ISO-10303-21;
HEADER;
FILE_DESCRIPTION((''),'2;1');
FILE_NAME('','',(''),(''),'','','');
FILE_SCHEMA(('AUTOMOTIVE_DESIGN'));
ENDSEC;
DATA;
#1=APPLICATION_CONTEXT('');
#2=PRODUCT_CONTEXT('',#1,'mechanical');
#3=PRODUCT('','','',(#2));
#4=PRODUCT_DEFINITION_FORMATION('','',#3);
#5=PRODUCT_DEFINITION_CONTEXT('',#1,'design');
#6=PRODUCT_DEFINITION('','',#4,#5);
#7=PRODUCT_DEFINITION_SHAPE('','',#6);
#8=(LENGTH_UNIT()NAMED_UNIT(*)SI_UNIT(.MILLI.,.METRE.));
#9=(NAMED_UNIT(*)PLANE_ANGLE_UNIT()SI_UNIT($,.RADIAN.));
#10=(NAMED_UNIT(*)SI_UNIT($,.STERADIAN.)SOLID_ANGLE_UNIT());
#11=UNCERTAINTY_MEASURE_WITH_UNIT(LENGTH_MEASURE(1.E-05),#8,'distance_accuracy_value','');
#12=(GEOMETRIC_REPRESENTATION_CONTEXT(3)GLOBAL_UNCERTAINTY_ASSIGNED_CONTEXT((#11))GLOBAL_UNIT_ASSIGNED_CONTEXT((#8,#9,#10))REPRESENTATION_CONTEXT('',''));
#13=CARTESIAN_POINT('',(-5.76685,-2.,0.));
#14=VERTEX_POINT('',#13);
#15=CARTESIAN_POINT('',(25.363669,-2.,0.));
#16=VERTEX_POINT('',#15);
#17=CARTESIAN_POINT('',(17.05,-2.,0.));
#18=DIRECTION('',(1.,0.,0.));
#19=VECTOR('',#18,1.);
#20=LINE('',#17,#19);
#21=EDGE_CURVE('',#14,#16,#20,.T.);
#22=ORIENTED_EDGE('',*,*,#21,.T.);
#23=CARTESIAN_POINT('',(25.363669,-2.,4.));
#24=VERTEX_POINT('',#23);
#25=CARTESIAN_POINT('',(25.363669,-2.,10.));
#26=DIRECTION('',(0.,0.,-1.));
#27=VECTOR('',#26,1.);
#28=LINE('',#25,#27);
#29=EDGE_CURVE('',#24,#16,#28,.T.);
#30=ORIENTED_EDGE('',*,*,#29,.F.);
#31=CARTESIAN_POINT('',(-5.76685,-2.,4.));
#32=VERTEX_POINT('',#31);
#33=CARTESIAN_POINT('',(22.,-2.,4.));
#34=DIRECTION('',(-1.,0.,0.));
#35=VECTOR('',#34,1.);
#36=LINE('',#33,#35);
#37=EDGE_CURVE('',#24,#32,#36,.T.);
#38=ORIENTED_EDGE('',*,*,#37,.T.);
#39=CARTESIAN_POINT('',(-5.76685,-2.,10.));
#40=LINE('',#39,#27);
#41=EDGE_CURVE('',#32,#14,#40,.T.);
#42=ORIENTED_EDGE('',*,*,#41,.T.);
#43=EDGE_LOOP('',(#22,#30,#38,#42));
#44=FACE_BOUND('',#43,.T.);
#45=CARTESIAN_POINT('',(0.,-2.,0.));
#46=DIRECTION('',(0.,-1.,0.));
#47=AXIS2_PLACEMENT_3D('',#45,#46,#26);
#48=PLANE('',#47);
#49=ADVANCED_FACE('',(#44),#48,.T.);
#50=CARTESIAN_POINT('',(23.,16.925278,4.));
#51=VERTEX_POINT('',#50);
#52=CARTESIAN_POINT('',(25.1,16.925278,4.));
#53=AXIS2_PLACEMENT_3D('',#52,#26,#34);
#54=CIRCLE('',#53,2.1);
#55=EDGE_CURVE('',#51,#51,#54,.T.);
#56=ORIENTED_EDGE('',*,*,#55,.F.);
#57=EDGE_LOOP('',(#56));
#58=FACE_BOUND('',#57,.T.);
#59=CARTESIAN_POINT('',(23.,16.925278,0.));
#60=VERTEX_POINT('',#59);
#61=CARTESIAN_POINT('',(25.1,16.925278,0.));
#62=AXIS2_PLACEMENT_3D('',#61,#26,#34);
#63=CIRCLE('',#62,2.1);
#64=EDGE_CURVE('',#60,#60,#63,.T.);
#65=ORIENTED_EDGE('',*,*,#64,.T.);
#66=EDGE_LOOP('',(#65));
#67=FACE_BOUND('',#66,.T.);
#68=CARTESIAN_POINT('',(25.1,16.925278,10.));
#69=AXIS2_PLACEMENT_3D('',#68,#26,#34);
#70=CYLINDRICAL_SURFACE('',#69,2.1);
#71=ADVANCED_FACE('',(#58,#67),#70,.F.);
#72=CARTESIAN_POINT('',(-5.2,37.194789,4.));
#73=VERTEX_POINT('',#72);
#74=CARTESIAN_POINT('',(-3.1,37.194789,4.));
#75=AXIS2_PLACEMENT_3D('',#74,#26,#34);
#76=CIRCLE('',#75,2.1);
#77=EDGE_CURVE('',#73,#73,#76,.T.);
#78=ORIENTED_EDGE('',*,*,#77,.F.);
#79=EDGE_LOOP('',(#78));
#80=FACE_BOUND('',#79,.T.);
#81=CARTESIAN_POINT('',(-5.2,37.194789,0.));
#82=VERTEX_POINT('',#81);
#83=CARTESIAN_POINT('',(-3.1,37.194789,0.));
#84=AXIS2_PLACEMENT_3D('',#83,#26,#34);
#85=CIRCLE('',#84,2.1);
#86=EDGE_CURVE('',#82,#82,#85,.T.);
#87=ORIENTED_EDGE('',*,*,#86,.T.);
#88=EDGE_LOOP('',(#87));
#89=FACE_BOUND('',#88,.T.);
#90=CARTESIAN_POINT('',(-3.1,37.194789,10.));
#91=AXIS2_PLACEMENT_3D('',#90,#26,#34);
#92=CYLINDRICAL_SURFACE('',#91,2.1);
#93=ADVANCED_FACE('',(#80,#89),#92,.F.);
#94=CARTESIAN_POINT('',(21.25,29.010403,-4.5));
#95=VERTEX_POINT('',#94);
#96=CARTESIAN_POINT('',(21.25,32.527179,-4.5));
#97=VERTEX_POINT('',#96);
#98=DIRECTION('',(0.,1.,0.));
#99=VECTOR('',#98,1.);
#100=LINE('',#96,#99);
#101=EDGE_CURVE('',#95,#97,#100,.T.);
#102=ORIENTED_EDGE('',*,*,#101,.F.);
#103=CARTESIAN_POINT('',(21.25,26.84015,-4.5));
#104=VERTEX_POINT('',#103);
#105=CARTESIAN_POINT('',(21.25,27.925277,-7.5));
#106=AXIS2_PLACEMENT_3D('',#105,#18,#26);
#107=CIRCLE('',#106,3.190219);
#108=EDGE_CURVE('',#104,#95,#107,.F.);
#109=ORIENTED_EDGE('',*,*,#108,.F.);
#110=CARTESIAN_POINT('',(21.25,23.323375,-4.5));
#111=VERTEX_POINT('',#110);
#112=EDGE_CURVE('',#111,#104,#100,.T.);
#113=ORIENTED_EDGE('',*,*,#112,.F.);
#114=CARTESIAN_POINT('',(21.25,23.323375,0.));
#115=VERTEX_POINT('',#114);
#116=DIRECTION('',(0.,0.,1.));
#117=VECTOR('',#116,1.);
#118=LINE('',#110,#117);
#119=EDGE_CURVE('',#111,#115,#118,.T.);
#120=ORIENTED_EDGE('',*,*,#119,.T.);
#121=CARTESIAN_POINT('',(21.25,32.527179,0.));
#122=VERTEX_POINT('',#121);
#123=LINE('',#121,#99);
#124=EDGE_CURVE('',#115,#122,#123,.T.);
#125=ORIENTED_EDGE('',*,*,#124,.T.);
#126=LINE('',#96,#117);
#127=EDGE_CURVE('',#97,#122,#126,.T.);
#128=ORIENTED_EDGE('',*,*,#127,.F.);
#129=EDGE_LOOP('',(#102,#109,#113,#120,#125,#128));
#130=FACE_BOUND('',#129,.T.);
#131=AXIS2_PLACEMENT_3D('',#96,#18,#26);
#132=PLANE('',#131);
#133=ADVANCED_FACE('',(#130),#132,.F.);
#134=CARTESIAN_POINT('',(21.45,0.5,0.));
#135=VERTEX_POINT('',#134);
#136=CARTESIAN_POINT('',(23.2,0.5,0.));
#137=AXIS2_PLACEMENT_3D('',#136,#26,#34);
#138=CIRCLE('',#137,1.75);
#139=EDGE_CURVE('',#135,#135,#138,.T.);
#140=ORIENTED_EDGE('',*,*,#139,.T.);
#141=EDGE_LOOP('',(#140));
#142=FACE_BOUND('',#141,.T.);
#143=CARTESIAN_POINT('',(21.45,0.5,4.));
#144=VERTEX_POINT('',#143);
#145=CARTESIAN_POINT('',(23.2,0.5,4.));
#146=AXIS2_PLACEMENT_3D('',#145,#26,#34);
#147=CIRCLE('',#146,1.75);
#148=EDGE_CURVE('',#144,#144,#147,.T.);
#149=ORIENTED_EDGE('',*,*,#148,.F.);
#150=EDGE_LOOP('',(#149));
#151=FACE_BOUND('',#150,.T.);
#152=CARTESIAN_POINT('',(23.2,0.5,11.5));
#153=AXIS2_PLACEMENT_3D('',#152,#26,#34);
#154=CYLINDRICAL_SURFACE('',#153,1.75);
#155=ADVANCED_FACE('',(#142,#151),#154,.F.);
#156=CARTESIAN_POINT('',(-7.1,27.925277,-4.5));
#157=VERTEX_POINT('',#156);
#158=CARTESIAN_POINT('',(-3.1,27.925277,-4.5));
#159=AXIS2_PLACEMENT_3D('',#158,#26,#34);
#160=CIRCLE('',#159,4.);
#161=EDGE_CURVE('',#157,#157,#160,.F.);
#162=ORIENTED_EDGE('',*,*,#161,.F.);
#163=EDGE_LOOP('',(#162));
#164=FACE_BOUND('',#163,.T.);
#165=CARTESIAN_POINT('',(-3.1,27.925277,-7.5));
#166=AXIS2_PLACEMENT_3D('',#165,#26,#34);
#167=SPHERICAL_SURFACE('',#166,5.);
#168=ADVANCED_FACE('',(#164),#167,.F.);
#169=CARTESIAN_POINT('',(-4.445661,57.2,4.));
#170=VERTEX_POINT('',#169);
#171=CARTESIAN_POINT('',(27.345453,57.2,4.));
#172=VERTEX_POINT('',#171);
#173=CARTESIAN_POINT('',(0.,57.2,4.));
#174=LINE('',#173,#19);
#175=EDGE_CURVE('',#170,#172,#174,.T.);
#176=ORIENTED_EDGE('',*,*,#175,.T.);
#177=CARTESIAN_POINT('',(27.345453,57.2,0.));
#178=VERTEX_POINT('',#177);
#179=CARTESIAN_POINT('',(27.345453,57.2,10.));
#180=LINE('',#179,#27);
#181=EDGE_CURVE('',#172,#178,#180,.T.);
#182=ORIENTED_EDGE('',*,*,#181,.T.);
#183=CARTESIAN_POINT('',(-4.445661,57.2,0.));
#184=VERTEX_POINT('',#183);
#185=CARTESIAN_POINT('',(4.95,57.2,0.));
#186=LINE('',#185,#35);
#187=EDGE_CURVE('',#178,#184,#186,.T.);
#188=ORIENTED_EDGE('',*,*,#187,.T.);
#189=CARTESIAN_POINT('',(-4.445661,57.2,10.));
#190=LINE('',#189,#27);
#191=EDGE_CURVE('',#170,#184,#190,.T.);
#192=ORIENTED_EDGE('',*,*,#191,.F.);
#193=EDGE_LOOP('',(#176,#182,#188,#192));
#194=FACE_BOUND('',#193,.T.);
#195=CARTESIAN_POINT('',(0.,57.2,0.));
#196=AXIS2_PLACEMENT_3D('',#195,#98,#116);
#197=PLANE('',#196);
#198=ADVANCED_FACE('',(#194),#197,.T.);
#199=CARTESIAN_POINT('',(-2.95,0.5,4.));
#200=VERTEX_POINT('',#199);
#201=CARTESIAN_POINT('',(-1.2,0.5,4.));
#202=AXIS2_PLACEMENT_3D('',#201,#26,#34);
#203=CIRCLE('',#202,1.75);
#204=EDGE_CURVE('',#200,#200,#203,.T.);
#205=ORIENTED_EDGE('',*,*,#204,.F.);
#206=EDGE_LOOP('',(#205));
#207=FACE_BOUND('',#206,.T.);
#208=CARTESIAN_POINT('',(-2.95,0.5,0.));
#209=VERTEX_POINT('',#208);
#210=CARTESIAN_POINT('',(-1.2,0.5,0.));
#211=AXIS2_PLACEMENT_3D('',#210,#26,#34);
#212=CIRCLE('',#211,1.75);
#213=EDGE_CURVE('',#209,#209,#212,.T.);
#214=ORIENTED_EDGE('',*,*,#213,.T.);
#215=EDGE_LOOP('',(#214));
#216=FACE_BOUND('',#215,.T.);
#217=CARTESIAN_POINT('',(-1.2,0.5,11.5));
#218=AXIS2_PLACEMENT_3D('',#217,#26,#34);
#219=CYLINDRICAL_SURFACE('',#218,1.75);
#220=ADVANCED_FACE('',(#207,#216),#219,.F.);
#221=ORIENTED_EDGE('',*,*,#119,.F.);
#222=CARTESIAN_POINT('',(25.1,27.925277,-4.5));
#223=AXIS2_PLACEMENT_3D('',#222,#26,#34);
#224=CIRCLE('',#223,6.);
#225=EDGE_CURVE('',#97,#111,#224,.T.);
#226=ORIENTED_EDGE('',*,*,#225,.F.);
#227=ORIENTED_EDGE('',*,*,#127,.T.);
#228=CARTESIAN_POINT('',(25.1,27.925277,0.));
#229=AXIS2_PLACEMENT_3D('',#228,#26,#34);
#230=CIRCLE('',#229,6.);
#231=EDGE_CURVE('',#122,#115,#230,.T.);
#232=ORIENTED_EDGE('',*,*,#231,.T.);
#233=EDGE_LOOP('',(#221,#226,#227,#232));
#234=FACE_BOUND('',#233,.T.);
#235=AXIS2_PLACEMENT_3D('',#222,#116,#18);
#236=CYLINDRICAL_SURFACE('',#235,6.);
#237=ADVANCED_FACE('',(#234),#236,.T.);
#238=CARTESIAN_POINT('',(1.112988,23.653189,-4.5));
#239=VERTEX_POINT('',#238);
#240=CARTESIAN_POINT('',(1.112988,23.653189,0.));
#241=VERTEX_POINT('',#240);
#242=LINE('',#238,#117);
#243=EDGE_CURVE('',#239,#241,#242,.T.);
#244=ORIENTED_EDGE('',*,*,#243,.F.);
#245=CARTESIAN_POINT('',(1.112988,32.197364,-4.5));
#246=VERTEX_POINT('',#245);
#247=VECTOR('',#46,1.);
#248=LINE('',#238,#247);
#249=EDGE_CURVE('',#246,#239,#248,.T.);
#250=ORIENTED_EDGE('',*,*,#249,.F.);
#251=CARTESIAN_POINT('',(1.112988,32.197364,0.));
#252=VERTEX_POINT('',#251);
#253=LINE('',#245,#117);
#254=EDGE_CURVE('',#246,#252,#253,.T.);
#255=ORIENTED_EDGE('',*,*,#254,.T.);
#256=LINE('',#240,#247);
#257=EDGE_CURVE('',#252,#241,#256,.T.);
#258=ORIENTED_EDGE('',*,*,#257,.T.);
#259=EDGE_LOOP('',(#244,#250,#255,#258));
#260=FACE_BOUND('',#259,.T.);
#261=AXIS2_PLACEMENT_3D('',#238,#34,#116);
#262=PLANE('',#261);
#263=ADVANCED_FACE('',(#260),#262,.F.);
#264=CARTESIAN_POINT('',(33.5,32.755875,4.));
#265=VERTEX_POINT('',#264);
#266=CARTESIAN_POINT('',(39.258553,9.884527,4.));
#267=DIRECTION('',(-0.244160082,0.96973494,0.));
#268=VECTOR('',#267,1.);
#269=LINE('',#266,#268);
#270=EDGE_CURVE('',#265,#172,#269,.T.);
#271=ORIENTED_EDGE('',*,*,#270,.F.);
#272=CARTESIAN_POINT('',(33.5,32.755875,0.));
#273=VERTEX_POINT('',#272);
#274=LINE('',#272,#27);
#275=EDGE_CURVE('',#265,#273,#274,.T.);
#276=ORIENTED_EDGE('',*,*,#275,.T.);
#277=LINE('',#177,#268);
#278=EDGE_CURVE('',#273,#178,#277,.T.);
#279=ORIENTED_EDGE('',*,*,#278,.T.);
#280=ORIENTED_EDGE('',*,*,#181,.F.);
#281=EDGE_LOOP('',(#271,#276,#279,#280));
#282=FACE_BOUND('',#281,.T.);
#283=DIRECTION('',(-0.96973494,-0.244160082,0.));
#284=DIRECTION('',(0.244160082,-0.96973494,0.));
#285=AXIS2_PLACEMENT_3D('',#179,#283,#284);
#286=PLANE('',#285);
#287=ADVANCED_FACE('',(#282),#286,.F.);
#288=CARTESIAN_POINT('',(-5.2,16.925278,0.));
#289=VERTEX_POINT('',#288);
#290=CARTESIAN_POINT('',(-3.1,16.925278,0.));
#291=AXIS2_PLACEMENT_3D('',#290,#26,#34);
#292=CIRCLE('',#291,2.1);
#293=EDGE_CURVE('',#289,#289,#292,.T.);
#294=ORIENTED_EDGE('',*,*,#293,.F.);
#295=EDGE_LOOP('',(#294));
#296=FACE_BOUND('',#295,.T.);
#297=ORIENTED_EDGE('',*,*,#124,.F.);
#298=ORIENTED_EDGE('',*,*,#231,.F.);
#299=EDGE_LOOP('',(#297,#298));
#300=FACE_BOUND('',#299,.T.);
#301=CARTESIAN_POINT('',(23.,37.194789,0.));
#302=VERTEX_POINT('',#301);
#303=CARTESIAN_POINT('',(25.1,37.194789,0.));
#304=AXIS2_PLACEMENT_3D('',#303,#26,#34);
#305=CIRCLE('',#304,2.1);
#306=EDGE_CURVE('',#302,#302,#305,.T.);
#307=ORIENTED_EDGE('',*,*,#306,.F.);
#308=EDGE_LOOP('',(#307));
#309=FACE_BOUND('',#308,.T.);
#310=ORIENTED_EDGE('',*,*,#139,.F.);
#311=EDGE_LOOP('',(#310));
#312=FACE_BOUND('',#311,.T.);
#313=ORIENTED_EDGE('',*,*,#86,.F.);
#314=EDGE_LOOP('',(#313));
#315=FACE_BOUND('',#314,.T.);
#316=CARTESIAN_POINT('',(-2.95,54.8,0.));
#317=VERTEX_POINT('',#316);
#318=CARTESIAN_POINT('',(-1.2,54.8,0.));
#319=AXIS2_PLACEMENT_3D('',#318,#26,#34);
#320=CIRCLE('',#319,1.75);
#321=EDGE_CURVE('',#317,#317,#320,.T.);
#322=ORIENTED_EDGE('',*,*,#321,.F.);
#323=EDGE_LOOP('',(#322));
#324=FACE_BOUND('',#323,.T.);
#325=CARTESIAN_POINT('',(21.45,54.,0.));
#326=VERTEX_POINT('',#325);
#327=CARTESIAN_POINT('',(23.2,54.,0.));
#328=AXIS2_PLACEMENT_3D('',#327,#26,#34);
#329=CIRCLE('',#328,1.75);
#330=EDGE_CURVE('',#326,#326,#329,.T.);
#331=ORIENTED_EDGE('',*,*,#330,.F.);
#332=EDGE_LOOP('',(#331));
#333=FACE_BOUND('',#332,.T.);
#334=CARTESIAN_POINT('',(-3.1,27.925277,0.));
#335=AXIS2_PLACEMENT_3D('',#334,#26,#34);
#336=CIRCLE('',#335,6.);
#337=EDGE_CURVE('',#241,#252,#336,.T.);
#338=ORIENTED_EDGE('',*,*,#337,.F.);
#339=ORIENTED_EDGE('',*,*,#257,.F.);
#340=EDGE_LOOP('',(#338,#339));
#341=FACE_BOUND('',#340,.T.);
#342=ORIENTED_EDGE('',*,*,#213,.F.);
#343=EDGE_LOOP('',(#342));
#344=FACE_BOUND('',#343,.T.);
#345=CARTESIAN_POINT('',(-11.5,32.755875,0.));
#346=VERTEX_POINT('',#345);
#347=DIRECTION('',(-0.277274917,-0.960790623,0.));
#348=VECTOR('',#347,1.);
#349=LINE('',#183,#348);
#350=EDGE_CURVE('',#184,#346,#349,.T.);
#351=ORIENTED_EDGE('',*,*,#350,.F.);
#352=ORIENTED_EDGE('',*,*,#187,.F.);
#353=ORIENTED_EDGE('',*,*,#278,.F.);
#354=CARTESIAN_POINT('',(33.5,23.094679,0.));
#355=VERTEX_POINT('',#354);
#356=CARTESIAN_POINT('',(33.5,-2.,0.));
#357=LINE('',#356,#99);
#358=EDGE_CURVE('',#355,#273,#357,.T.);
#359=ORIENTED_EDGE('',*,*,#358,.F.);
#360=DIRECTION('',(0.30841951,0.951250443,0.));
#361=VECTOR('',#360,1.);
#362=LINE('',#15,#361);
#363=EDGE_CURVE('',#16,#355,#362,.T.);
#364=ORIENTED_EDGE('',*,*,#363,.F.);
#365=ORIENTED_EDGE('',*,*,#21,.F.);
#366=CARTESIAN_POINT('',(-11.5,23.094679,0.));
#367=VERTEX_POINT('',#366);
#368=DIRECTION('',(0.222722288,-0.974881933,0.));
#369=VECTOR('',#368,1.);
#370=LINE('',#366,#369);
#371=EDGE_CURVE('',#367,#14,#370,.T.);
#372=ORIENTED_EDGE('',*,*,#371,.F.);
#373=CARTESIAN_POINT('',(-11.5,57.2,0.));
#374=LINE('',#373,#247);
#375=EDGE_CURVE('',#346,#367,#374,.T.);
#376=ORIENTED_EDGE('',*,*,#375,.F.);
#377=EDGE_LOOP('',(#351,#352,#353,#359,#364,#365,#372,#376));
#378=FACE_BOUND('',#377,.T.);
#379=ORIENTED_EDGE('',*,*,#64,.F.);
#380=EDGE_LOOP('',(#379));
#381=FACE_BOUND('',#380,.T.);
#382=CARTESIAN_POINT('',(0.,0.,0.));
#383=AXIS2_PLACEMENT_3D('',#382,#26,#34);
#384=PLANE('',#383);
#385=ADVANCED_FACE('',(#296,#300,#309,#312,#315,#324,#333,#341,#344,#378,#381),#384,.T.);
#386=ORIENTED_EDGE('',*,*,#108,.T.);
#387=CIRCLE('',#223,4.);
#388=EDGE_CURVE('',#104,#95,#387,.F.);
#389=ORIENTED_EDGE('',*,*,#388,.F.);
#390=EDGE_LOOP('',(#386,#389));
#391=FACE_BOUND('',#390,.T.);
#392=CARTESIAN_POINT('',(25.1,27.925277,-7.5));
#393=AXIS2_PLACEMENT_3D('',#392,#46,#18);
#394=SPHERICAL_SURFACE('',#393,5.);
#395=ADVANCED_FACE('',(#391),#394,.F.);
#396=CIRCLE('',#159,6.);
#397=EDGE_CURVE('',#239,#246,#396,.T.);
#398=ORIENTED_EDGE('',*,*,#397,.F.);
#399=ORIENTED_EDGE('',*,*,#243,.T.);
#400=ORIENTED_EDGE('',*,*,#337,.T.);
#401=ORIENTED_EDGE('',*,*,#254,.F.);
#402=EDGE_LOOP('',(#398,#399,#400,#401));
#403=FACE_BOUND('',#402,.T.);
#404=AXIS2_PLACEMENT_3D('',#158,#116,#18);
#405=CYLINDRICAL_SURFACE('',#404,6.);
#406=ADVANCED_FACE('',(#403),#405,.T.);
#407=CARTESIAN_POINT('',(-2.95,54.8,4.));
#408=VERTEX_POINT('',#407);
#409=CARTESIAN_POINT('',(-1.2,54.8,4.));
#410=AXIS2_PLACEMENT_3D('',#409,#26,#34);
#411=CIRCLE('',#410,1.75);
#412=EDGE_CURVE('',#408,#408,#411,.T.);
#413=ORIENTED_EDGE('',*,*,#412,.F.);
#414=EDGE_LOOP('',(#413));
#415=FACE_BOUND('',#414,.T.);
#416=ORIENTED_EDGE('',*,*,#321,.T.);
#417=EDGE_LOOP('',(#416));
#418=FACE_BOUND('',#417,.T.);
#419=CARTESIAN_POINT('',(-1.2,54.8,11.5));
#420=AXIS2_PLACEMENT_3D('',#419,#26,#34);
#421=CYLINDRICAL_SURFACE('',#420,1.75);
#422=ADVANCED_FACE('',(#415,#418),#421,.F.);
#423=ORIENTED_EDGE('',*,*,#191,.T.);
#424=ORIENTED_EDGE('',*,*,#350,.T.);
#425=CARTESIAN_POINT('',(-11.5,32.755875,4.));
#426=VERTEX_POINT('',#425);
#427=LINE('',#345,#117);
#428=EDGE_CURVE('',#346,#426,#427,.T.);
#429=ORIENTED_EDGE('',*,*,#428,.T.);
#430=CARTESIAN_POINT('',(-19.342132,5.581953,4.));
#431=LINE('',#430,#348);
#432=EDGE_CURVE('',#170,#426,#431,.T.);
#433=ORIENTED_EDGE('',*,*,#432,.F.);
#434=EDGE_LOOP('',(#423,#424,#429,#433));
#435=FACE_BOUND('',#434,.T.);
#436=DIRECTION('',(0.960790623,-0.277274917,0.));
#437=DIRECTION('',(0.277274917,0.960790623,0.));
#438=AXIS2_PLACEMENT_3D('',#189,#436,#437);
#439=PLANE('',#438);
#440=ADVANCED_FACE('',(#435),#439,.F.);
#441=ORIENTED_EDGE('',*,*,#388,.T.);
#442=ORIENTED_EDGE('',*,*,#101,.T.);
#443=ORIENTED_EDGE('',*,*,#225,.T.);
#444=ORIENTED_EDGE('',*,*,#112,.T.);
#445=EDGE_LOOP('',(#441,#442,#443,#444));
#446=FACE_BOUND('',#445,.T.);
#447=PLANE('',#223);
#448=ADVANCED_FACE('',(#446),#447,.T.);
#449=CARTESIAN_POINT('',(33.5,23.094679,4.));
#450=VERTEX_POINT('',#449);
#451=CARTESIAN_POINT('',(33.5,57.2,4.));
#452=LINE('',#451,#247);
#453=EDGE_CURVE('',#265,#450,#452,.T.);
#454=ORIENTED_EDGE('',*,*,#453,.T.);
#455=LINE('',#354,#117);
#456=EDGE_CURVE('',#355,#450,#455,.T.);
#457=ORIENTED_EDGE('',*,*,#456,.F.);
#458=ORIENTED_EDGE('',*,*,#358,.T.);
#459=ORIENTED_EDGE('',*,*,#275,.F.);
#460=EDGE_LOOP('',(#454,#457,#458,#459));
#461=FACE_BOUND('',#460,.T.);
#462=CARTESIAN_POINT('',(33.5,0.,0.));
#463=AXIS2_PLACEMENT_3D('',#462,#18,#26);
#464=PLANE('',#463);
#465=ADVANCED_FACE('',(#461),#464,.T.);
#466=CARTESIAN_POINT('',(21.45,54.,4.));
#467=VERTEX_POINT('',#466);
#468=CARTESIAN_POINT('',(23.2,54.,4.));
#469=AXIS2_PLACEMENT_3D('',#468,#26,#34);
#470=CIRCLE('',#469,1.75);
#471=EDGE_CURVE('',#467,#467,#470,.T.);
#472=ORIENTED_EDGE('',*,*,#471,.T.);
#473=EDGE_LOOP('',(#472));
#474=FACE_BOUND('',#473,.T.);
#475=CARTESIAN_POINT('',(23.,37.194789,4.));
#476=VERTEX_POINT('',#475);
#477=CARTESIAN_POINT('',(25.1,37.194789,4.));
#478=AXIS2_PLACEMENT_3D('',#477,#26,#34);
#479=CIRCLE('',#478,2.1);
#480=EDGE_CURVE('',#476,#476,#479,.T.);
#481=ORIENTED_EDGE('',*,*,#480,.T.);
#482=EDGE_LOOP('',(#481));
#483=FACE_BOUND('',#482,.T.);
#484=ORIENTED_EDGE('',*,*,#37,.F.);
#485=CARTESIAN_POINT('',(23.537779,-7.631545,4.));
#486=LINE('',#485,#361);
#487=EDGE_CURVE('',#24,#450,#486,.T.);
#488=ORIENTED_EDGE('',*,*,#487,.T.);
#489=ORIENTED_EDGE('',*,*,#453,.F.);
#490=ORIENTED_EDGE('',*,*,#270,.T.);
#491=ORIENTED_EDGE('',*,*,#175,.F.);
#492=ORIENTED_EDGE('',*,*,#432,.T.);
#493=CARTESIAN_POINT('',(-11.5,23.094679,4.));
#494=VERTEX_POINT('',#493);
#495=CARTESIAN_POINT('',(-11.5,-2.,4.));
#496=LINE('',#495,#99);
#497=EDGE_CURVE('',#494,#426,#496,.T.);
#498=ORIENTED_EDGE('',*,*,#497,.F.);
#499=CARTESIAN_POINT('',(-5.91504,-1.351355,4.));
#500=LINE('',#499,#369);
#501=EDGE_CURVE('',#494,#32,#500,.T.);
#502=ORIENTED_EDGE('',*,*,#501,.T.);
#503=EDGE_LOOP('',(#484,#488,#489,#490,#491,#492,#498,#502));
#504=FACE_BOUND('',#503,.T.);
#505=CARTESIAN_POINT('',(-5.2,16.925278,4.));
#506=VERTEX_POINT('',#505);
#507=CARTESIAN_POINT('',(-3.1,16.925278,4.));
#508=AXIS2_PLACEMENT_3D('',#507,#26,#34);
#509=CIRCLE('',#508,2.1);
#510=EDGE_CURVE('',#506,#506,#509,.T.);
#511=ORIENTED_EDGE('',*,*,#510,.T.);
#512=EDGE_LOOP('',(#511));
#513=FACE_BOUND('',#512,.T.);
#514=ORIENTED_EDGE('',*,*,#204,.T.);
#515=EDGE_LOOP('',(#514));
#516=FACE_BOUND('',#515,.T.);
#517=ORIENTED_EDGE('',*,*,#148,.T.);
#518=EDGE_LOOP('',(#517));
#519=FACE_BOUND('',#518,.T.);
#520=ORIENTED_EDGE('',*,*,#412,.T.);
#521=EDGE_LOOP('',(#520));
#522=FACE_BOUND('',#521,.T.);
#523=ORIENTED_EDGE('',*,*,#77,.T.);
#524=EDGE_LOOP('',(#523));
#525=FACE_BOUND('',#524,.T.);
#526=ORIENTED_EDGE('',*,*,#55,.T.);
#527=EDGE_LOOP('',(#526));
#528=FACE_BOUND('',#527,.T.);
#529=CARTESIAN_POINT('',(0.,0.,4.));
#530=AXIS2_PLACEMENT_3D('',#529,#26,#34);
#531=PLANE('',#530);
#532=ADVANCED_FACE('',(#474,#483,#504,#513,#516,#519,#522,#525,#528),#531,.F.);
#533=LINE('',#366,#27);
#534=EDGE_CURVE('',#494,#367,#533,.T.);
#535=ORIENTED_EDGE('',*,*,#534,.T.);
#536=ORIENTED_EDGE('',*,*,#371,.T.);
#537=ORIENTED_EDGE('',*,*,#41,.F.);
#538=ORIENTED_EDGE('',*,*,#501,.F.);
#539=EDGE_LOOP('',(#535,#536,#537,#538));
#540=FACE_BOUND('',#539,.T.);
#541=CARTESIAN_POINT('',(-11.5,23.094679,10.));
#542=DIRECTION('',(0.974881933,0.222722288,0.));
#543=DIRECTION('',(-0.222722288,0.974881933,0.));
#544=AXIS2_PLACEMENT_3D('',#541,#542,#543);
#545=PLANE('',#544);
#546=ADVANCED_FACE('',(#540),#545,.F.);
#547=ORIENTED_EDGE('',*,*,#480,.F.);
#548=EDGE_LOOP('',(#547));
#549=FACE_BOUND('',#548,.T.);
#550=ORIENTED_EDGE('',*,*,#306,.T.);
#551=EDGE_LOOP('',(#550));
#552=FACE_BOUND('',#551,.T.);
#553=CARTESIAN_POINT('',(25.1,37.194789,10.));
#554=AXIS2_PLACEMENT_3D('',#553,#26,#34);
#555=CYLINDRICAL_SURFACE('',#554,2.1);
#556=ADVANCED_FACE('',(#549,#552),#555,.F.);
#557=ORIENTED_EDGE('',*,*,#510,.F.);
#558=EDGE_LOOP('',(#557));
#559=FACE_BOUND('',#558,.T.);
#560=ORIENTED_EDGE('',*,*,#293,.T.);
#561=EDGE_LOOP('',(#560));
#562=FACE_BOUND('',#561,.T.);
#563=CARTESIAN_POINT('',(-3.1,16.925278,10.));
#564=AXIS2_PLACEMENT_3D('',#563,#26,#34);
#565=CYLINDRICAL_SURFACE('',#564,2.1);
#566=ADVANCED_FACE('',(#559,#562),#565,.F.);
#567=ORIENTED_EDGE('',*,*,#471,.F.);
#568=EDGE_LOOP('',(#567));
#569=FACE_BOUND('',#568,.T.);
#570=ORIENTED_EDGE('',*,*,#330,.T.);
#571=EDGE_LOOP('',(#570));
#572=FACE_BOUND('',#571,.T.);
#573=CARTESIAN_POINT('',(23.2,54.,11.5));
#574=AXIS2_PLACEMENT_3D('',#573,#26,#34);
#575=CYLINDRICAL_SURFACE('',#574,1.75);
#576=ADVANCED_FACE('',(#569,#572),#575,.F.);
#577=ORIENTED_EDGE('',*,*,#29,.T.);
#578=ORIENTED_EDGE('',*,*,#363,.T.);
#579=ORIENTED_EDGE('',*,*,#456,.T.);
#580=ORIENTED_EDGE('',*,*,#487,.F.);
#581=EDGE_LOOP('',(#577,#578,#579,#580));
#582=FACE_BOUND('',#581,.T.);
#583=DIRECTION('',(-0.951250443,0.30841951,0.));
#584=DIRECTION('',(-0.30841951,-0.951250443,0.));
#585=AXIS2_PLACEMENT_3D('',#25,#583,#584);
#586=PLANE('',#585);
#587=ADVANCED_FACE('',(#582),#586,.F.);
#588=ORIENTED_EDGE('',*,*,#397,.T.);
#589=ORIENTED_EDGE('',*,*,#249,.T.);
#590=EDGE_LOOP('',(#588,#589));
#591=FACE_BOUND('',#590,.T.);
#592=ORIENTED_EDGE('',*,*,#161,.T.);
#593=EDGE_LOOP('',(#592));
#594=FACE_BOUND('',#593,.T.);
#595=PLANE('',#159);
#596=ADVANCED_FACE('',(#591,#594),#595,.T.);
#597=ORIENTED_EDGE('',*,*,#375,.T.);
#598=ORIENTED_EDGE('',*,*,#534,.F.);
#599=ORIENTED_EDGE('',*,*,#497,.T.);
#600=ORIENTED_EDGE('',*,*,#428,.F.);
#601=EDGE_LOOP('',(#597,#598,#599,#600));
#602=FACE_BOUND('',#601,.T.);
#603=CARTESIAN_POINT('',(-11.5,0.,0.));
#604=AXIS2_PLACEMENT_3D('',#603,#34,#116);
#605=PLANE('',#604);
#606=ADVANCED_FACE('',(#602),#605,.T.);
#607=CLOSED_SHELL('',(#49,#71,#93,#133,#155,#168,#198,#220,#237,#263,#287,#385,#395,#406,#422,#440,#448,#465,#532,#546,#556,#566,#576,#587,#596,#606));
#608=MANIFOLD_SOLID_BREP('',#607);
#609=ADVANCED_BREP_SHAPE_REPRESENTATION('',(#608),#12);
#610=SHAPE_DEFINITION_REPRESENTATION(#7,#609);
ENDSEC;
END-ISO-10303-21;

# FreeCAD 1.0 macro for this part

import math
import FreeCAD as App
import Part
import Sketcher

V = App.Vector


def add_polygon(sketch, points):
    """Adds a closed chain of lines whose ends are joined by coincident constraints."""
    first, n = sketch.GeometryCount, len(points)
    for a, b in zip(points, points[1:] + points[:1]):
        sketch.addGeometry(Part.LineSegment(App.Vector(*a, 0), App.Vector(*b, 0)), False)
    for i in range(n):
        sketch.addConstraint(Sketcher.Constraint("Coincident", first + i, 2, first + (i + 1) % n, 1))

doc = App.newDocument("Part")
params = doc.addObject("Spreadsheet::Sheet", "Params")
for row, (alias, value) in enumerate([
    ("sketch1_width", "22 mm"),
    ("sketch1_height", "55.2 mm"),
    ("pad1_length", "4 mm"),
    ("sketch2_height", "4 mm"),
    ("sketch2_width", "12.1 mm"),
    ("pocket1_length", "9.6 mm"),
    ("sketch3_height", "4 mm"),
    ("sketch3_width", "12.1 mm"),
    ("pocket2_length", "9.6 mm"),
    ("sketch4_radius", "7.5 mm"),
    ("sketch4_width", "7.2 mm"),
    ("sketch4_width2", "12.1 mm"),
    ("pocket3_length", "16 mm"),
    ("sketch5_radius", "7.5 mm"),
    ("sketch5_width", "12.1 mm"),
    ("sketch5_width2", "7.2 mm"),
    ("pocket4_length", "16 mm"),
    ("sketch6_height", "4 mm"),
    ("pocket5_length", "2 mm"),
    ("sketch7_height", "4 mm"),
    ("sketch7_width", "4.95 mm"),
    ("pad2_length", "2 mm"),
    ("sketch8_height", "4 mm"),
    ("sketch8_width", "1.8 mm"),
    ("pad3_length", "12.1 mm"),
    ("sketch9_height", "4 mm"),
    ("sketch9_width", "4.95 mm"),
    ("pad4_length", "2 mm"),
    ("sketch10_height", "4 mm"),
    ("sketch10_width", "1.8 mm"),
    ("pad5_length", "12.1 mm"),
    ("sketch11_height", "4 mm"),
    ("sketch11_width", "59.2 mm"),
    ("pad6_length", "11.5 mm"),
    ("sketch12_height", "4 mm"),
    ("sketch12_width", "59.2 mm"),
    ("pad7_length", "11.5 mm"),
    ("sketch13_diameter", "3.5 mm"),
    ("pocket6_length", "11.5 mm"),
    ("pocket7_length", "10 mm"),
    ("sketch15_width", "12.1 mm"),
    ("sketch15_height", "55.6 mm"),
    ("pocket8_length", "10 mm"),
    ("sketch16_height", "4 mm"),
    ("sketch16_width", "12.1 mm"),
    ("pad8_length", "55.6 mm"),
    ("sketch17_radius", "6 mm"),
    ("pad9_length", "4.5 mm"),
    ("sketch18_radius", "5 mm"),
    ("groove_angle", "360 deg"),
    ("sketch19_radius", "5 mm"),
    ("groove2_angle", "360 deg"),
    ("sketch20_diameter", "4.2 mm"),
    ("pocket9_length", "10 mm"),
], start=1):
    params.set(f"A{row}", alias)
    params.set(f"B{row}", "=" + value)
    params.setAlias(f"B{row}", alias)

body = doc.addObject("PartDesign::Body", "Body")

# Sketch on XY plane
sketch1 = body.newObject("Sketcher::SketchObject", "Sketch")
sketch1.AttachmentSupport = (doc.getObject("XY_Plane"), [""])
sketch1.MapMode = "FlatFace"
add_polygon(sketch1, [(0, 55), (0, 0), (22, 0), (22, 55)])  # lines 0-3
sketch1.addConstraint([
    Sketcher.Constraint("Vertical", 0),
    Sketcher.Constraint("Horizontal", 1),
    Sketcher.Constraint("Vertical", 2),
    Sketcher.Constraint("Horizontal", 3),
    Sketcher.Constraint("Coincident", 0, 2, -1, 1),
    Sketcher.Constraint("DistanceX", 1, 1, 1, 2, 22.0),
    Sketcher.Constraint("DistanceY", 0, 2, 0, 1, 55.2),
])
sketch1.setExpression("Constraints[9]", "Params.sketch1_width")
sketch1.setExpression("Constraints[10]", "Params.sketch1_height")
pad1 = body.newObject("PartDesign::Pad", "Pad")
pad1.Profile = sketch1
pad1.setExpression("Length", "Params.pad1_length")

# Sketch on XZ plane
sketch2 = body.newObject("Sketcher::SketchObject", "Sketch001")
sketch2.AttachmentSupport = (doc.getObject("XZ_Plane"), [""])
sketch2.MapMode = "FlatFace"
sketch2.AttachmentOffset = App.Placement(V(0, 0, -55.2), App.Rotation())
add_polygon(sketch2, [(5, 0), (5, 4), (17.1, 4), (17.1, 0)])  # lines 0-3
sketch2.addConstraint([
    Sketcher.Constraint("Vertical", 0),
    Sketcher.Constraint("Horizontal", 1),
    Sketcher.Constraint("Vertical", 2),
    Sketcher.Constraint("Horizontal", 3),
    Sketcher.Constraint("PointOnObject", 2, 2, -1),
    Sketcher.Constraint("DistanceY", 0, 1, 0, 2, 4.0),
    Sketcher.Constraint("DistanceX", 1, 1, 1, 2, 12.1),
    Sketcher.Constraint("DistanceX", -1, 1, 0, 2, 4.95),
])
sketch2.setExpression("Constraints[9]", "Params.sketch2_height")
sketch2.setExpression("Constraints[10]", "Params.sketch2_width")
pocket1 = body.newObject("PartDesign::Pocket", "Pocket")
pocket1.Profile = sketch2
pocket1.setExpression("Length", "Params.pocket1_length")
pocket1.Reversed = True

# Sketch on XZ plane
sketch3 = body.newObject("Sketcher::SketchObject", "Sketch002")
sketch3.AttachmentSupport = (doc.getObject("XZ_Plane"), [""])
sketch3.MapMode = "FlatFace"
add_polygon(sketch3, [(5, 4), (5, 0), (17.1, 0), (17.1, 4)])  # lines 0-3
sketch3.addConstraint([
    Sketcher.Constraint("Vertical", 0),
    Sketcher.Constraint("Horizontal", 1),
    Sketcher.Constraint("Vertical", 2),
    Sketcher.Constraint("Horizontal", 3),
    Sketcher.Constraint("PointOnObject", 0, 2, -1),
    Sketcher.Constraint("DistanceY", 0, 2, 0, 1, 4.0),
    Sketcher.Constraint("DistanceX", 1, 1, 1, 2, 12.1),
    Sketcher.Constraint("DistanceX", -1, 1, 0, 2, 4.95),
])
sketch3.setExpression("Constraints[9]", "Params.sketch3_height")
sketch3.setExpression("Constraints[10]", "Params.sketch3_width")
pocket2 = body.newObject("PartDesign::Pocket", "Pocket001")
pocket2.Profile = sketch3
pocket2.setExpression("Length", "Params.pocket2_length")

# Sketch on XZ plane
sketch4 = body.newObject("Sketcher::SketchObject", "Sketch003")
sketch4.AttachmentSupport = (doc.getObject("XZ_Plane"), [""])
sketch4.MapMode = "FlatFace"
sketch4.AttachmentOffset = App.Placement(V(0, 0, -9.6), App.Rotation())
sketch4.addGeometry([
    Part.LineSegment(V(15, 4, 0), V(7, 4, 0)),
    Part.ArcOfCircle(Part.Circle(V(12, -2, 0), V(0, 0, 1), 8), math.radians(132), math.radians(180)),
    Part.LineSegment(V(5, -2, 0), V(17, -2, 0)),
    Part.ArcOfCircle(Part.Circle(V(10, -2, 0), V(0, 0, 1), 8), math.radians(0), math.radians(48)),
], False)
sketch4.addConstraint([
    Sketcher.Constraint("Coincident", 0, 2, 1, 1),
    Sketcher.Constraint("Coincident", 1, 2, 2, 1),
    Sketcher.Constraint("Coincident", 2, 2, 3, 1),
    Sketcher.Constraint("Coincident", 3, 2, 0, 1),
    Sketcher.Constraint("Horizontal", 0),
    Sketcher.Constraint("Horizontal", 2),
    Sketcher.Constraint("Equal", 1, 3),
    Sketcher.Constraint("Horizontal", 1, 3, 3, 3),
    Sketcher.Constraint("Radius", 1, 7.5),
    Sketcher.Constraint("DistanceX", 0, 2, 0, 1, 7.2),
    Sketcher.Constraint("DistanceX", 2, 1, 2, 2, 12.1),
    Sketcher.Constraint("DistanceY", -1, 1, 0, 2, 4.0),
    Sketcher.Constraint("DistanceX", -1, 1, 0, 2, 7.4),
    Sketcher.Constraint("DistanceY", 1, 2, -1, 1, 1.5),
])
sketch4.setExpression("Constraints[8]", "Params.sketch4_radius")
sketch4.setExpression("Constraints[9]", "Params.sketch4_width")
sketch4.setExpression("Constraints[10]", "Params.sketch4_width2")
pocket3 = body.newObject("PartDesign::Pocket", "Pocket002")
pocket3.Profile = sketch4
pocket3.setExpression("Length", "Params.pocket3_length")

# Sketch on XZ plane
sketch5 = body.newObject("Sketcher::SketchObject", "Sketch004")
sketch5.AttachmentSupport = (doc.getObject("XZ_Plane"), [""])
sketch5.MapMode = "FlatFace"
sketch5.AttachmentOffset = App.Placement(V(0, 0, -29.6), App.Rotation())
sketch5.addGeometry([
    Part.LineSegment(V(17, -2, 0), V(5, -2, 0)),
    Part.ArcOfCircle(Part.Circle(V(12, -2, 0), V(0, 0, 1), 8), math.radians(132), math.radians(180)),
    Part.LineSegment(V(7, 4, 0), V(15, 4, 0)),
    Part.ArcOfCircle(Part.Circle(V(10, -2, 0), V(0, 0, 1), 8), math.radians(0), math.radians(48)),
], False)
sketch5.addConstraint([
    Sketcher.Constraint("Coincident", 0, 2, 1, 2),
    Sketcher.Constraint("Coincident", 1, 1, 2, 1),
    Sketcher.Constraint("Coincident", 2, 2, 3, 2),
    Sketcher.Constraint("Coincident", 3, 1, 0, 1),
    Sketcher.Constraint("Horizontal", 0),
    Sketcher.Constraint("Horizontal", 2),
    Sketcher.Constraint("Equal", 1, 3),
    Sketcher.Constraint("Horizontal", 1, 3, 3, 3),
    Sketcher.Constraint("Radius", 1, 7.5),
    Sketcher.Constraint("DistanceX", 0, 2, 0, 1, 12.1),
    Sketcher.Constraint("DistanceX", 2, 1, 2, 2, 7.2),
    Sketcher.Constraint("DistanceY", -1, 1, 1, 1, 4.0),
    Sketcher.Constraint("DistanceY", 0, 2, -1, 1, 1.5),
    Sketcher.Constraint("DistanceX", -1, 1, 1, 1, 7.4),
])
sketch5.setExpression("Constraints[8]", "Params.sketch5_radius")
sketch5.setExpression("Constraints[9]", "Params.sketch5_width")
sketch5.setExpression("Constraints[10]", "Params.sketch5_width2")
pocket4 = body.newObject("PartDesign::Pocket", "Pocket003")
pocket4.Profile = sketch5
pocket4.setExpression("Length", "Params.pocket4_length")

# Sketch on XY plane
sketch6 = body.newObject("Sketcher::SketchObject", "Sketch005")
sketch6.AttachmentSupport = (doc.getObject("XY_Plane"), [""])
sketch6.MapMode = "FlatFace"
add_polygon(sketch6, [(16.9, 29.6), (16.9, 25.6), (5.1, 25.6), (5.1, 29.6)])  # lines 0-3
sketch6.addConstraint([
    Sketcher.Constraint("Vertical", 0),
    Sketcher.Constraint("Horizontal", 1),
    Sketcher.Constraint("Vertical", 2),
    Sketcher.Constraint("Horizontal", 3),
    Sketcher.Constraint("DistanceY", 0, 2, 0, 1, 4.0),
    Sketcher.Constraint("DistanceY", -1, 1, 0, 2, 25.6),
    Sketcher.Constraint("DistanceX", 1, 2, 1, 1, 11.778482),
    Sketcher.Constraint("DistanceX", -1, 1, 0, 2, 16.889241),
])
sketch6.setExpression("Constraints[8]", "Params.sketch6_height")
pocket5 = body.newObject("PartDesign::Pocket", "Pocket004")
pocket5.Profile = sketch6
pocket5.setExpression("Length", "Params.pocket5_length")
pocket5.Reversed = True

# Sketch on XZ plane
sketch7 = body.newObject("Sketcher::SketchObject", "Sketch006")
sketch7.AttachmentSupport = (doc.getObject("XZ_Plane"), [""])
sketch7.MapMode = "FlatFace"
sketch7.AttachmentOffset = App.Placement(V(0, 0, -55.2), App.Rotation())
add_polygon(sketch7, [(0, 0), (0, 4), (5, 4), (5, 0)])  # lines 0-3
add_polygon(sketch7, [(17.1, 0), (17.1, 4), (22, 4), (22, 0)])  # lines 4-7
sketch7.addConstraint([
    Sketcher.Constraint("Vertical", 0),
    Sketcher.Constraint("Horizontal", 1),
    Sketcher.Constraint("Vertical", 2),
    Sketcher.Constraint("Horizontal", 3),
    Sketcher.Constraint("Vertical", 4),
    Sketcher.Constraint("Horizontal", 5),
    Sketcher.Constraint("Vertical", 6),
    Sketcher.Constraint("Horizontal", 7),
    Sketcher.Constraint("Coincident", 3, 2, -1, 1),
    Sketcher.Constraint("PointOnObject", 6, 2, -1),
    Sketcher.Constraint("Horizontal", 1, 2, 4, 2),
    Sketcher.Constraint("Equal", 3, 5),
    Sketcher.Constraint("DistanceY", 0, 1, 0, 2, 4.0),
    Sketcher.Constraint("DistanceX", -1, 1, 5, 2, 22.0),
    Sketcher.Constraint("DistanceX", 1, 1, 1, 2, 4.95),
])
sketch7.setExpression("Constraints[20]", "Params.sketch7_height")
sketch7.setExpression("Constraints[22]", "Params.sketch7_width")
pad2 = body.newObject("PartDesign::Pad", "Pad001")
pad2.Profile = sketch7
pad2.setExpression("Length", "Params.pad2_length")
pad2.Reversed = True

# Sketch on YZ plane
sketch8 = body.newObject("Sketcher::SketchObject", "Sketch007")
sketch8.AttachmentSupport = (doc.getObject("YZ_Plane"), [""])
sketch8.MapMode = "FlatFace"
sketch8.AttachmentOffset = App.Placement(V(0, 0, 4.95), App.Rotation())
add_polygon(sketch8, [(57.2, 4), (55.4, 4), (55.4, 0), (57.2, 0)])  # lines 0-3
sketch8.addConstraint([
    Sketcher.Constraint("Horizontal", 0),
    Sketcher.Constraint("Vertical", 1),
    Sketcher.Constraint("Horizontal", 2),
    Sketcher.Constraint("Vertical", 3),
    Sketcher.Constraint("PointOnObject", 1, 2, -1),
    Sketcher.Constraint("DistanceY", 1, 2, 1, 1, 4.0),
    Sketcher.Constraint("DistanceX", 0, 2, 0, 1, 1.8),
    Sketcher.Constraint("DistanceX", -1, 1, 0, 2, 55.4),
])
sketch8.setExpression("Constraints[9]", "Params.sketch8_height")
sketch8.setExpression("Constraints[10]", "Params.sketch8_width")
pad3 = body.newObject("PartDesign::Pad", "Pad002")
pad3.Profile = sketch8
pad3.setExpression("Length", "Params.pad3_length")

# Sketch on XZ plane
sketch9 = body.newObject("Sketcher::SketchObject", "Sketch008")
sketch9.AttachmentSupport = (doc.getObject("XZ_Plane"), [""])
sketch9.MapMode = "FlatFace"
add_polygon(sketch9, [(17.1, 4), (17.1, 0), (22, 0), (22, 4)])  # lines 0-3
add_polygon(sketch9, [(0, 4), (0, 0), (5, 0), (5, 4)])  # lines 4-7
sketch9.addConstraint([
    Sketcher.Constraint("Vertical", 0),
    Sketcher.Constraint("Horizontal", 1),
    Sketcher.Constraint("Vertical", 2),
    Sketcher.Constraint("Horizontal", 3),
    Sketcher.Constraint("Vertical", 4),
    Sketcher.Constraint("Horizontal", 5),
    Sketcher.Constraint("Vertical", 6),
    Sketcher.Constraint("Horizontal", 7),
    Sketcher.Constraint("Coincident", 4, 2, -1, 1),
    Sketcher.Constraint("PointOnObject", 0, 2, -1),
    Sketcher.Constraint("Horizontal", 3, 2, 6, 2),
    Sketcher.Constraint("Equal", 3, 5),
    Sketcher.Constraint("DistanceY", 0, 2, 0, 1, 4.0),
    Sketcher.Constraint("DistanceX", -1, 1, 1, 2, 22.0),
    Sketcher.Constraint("DistanceX", 1, 1, 1, 2, 4.95),
])
sketch9.setExpression("Constraints[20]", "Params.sketch9_height")
sketch9.setExpression("Constraints[22]", "Params.sketch9_width")
pad4 = body.newObject("PartDesign::Pad", "Pad003")
pad4.Profile = sketch9
pad4.setExpression("Length", "Params.pad4_length")

# Sketch on YZ plane
sketch10 = body.newObject("Sketcher::SketchObject", "Sketch009")
sketch10.AttachmentSupport = (doc.getObject("YZ_Plane"), [""])
sketch10.MapMode = "FlatFace"
sketch10.AttachmentOffset = App.Placement(V(0, 0, 4.95), App.Rotation())
add_polygon(sketch10, [(-0.2, 4), (-2, 4), (-2, 0), (-0.2, 0)])  # lines 0-3
sketch10.addConstraint([
    Sketcher.Constraint("Horizontal", 0),
    Sketcher.Constraint("Vertical", 1),
    Sketcher.Constraint("Horizontal", 2),
    Sketcher.Constraint("Vertical", 3),
    Sketcher.Constraint("PointOnObject", 1, 2, -1),
    Sketcher.Constraint("DistanceY", 1, 2, 1, 1, 4.0),
    Sketcher.Constraint("DistanceX", 0, 2, 0, 1, 1.8),
    Sketcher.Constraint("DistanceX", 0, 2, -1, 1, 2.0),
])
sketch10.setExpression("Constraints[9]", "Params.sketch10_height")
sketch10.setExpression("Constraints[10]", "Params.sketch10_width")
pad5 = body.newObject("PartDesign::Pad", "Pad004")
pad5.Profile = sketch10
pad5.setExpression("Length", "Params.pad5_length")

# Sketch on YZ plane
sketch11 = body.newObject("Sketcher::SketchObject", "Sketch010")
sketch11.AttachmentSupport = (doc.getObject("YZ_Plane"), [""])
sketch11.MapMode = "FlatFace"
add_polygon(sketch11, [(57.2, 0), (-2, 0), (-2, 4), (57.2, 4)])  # lines 0-3
sketch11.addConstraint([
    Sketcher.Constraint("Horizontal", 0),
    Sketcher.Constraint("Vertical", 1),
    Sketcher.Constraint("Horizontal", 2),
    Sketcher.Constraint("Vertical", 3),
    Sketcher.Constraint("PointOnObject", 0, 2, -1),
    Sketcher.Constraint("DistanceY", 1, 1, 1, 2, 4.0),
    Sketcher.Constraint("DistanceX", 0, 2, 0, 1, 59.2),
    Sketcher.Constraint("DistanceX", 0, 2, -1, 1, 2.0),
])
sketch11.setExpression("Constraints[9]", "Params.sketch11_height")
sketch11.setExpression("Constraints[10]", "Params.sketch11_width")
pad6 = body.newObject("PartDesign::Pad", "Pad005")
pad6.Profile = sketch11
pad6.setExpression("Length", "Params.pad6_length")
pad6.Reversed = True

# Sketch on YZ plane
sketch12 = body.newObject("Sketcher::SketchObject", "Sketch011")
sketch12.AttachmentSupport = (doc.getObject("YZ_Plane"), [""])
sketch12.MapMode = "FlatFace"
sketch12.AttachmentOffset = App.Placement(V(0, 0, 22), App.Rotation())
add_polygon(sketch12, [(57.2, 4), (-2, 4), (-2, 0), (57.2, 0)])  # lines 0-3
sketch12.addConstraint([
    Sketcher.Constraint("Horizontal", 0),
    Sketcher.Constraint("Vertical", 1),
    Sketcher.Constraint("Horizontal", 2),
    Sketcher.Constraint("Vertical", 3),
    Sketcher.Constraint("PointOnObject", 1, 2, -1),
    Sketcher.Constraint("DistanceY", 1, 2, 1, 1, 4.0),
    Sketcher.Constraint("DistanceX", 0, 2, 0, 1, 59.2),
    Sketcher.Constraint("DistanceX", 0, 2, -1, 1, 2.0),
])
sketch12.setExpression("Constraints[9]", "Params.sketch12_height")
sketch12.setExpression("Constraints[10]", "Params.sketch12_width")
pad7 = body.newObject("PartDesign::Pad", "Pad006")
pad7.Profile = sketch12
pad7.setExpression("Length", "Params.pad7_length")

# Sketch on XY plane
sketch13 = body.newObject("Sketcher::SketchObject", "Sketch012")
sketch13.AttachmentSupport = (doc.getObject("XY_Plane"), [""])
sketch13.MapMode = "FlatFace"
sketch13.addGeometry([
    Part.Circle(V(23.2, 54, 0), V(0, 0, 1), 1.8),
    Part.Circle(V(-1.2, 54.8, 0), V(0, 0, 1), 1.8),
    Part.Circle(V(-1.2, 0.5, 0), V(0, 0, 1), 1.8),
    Part.Circle(V(23.2, 0.5, 0), V(0, 0, 1), 1.8),
], False)
sketch13.addConstraint([
    Sketcher.Constraint("Equal", 0, 1),
    Sketcher.Constraint("Equal", 1, 2),
    Sketcher.Constraint("Equal", 2, 3),
    Sketcher.Constraint("Horizontal", 2, 3, 3, 3),
    Sketcher.Constraint("Vertical", 1, 3, 2, 3),
    Sketcher.Constraint("Vertical", 0, 3, 3, 3),
    Sketcher.Constraint("Diameter", 0, 3.5),
    Sketcher.Constraint("DistanceY", -1, 1, 0, 3, 54.0),
    Sketcher.Constraint("DistanceX", -1, 1, 0, 3, 23.2),
    Sketcher.Constraint("DistanceX", 1, 3, -1, 1, 1.2),
    Sketcher.Constraint("DistanceY", -1, 1, 1, 3, 54.8),
    Sketcher.Constraint("DistanceY", -1, 1, 2, 3, 0.5),
])
sketch13.setExpression("Constraints[6]", "Params.sketch13_diameter")
pocket6 = body.newObject("PartDesign::Pocket", "Pocket005")
pocket6.Profile = sketch13
pocket6.setExpression("Length", "Params.pocket6_length")
pocket6.Reversed = True

# Sketch on XY plane
sketch14 = body.newObject("Sketcher::SketchObject", "Sketch013")
sketch14.AttachmentSupport = (doc.getObject("XY_Plane"), [""])
sketch14.MapMode = "FlatFace"
add_polygon(sketch14, [(34, 33), (27, 57), (34, 57)])  # lines 0-2
add_polygon(sketch14, [(-4, 57), (-12, 33), (-12, 57)])  # lines 3-5
add_polygon(sketch14, [(25, -2), (34, 23), (34, -2)])  # lines 6-8
add_polygon(sketch14, [(-12, 23), (-6, -2), (-12, -2)])  # lines 9-11
sketch14.addConstraint([
    Sketcher.Constraint("Horizontal", 1),
    Sketcher.Constraint("Vertical", 2),
    Sketcher.Constraint("Vertical", 4),
    Sketcher.Constraint("Horizontal", 5),
    Sketcher.Constraint("Vertical", 7),
    Sketcher.Constraint("Horizontal", 8),
    Sketcher.Constraint("Horizontal", 10),
    Sketcher.Constraint("Vertical", 11),
    Sketcher.Constraint("Horizontal", 2, 2, 3, 2),
    Sketcher.Constraint("Horizontal", 1, 2, 4, 2),
    Sketcher.Constraint("Horizontal", 8, 2, 9, 2),
    Sketcher.Constraint("Horizontal", 6, 2, 11, 2),
    Sketcher.Constraint("Vertical", 2, 2, 6, 2),
    Sketcher.Constraint("Vertical", 4, 2, 10, 2),
    Sketcher.Constraint("DistanceY", 7, 2, -1, 1, 2.0),
    Sketcher.Constraint("DistanceX", 3, 2, 2, 2, 45.0),
    Sketcher.Constraint("DistanceY", -1, 1, 0, 2, 57.2),
    Sketcher.Constraint("DistanceX", -1, 1, 1, 2, 33.5),
    Sketcher.Constraint("DistanceX", 5, 1, 5, 2, 7.054339),
    Sketcher.Constraint("DistanceX", 8, 2, 8, 1, 8.136331),
    Sketcher.Constraint("DistanceX", 10, 2, 10, 1, 5.73315),
    Sketcher.Constraint("DistanceY", 7, 2, 7, 1, 25.094679),
    Sketcher.Constraint("DistanceX", 1, 1, 1, 2, 6.154547),
    Sketcher.Constraint("DistanceY", 2, 2, 2, 1, 24.444125),
])
pocket7 = body.newObject("PartDesign::Pocket", "Pocket006")
pocket7.Profile = sketch14
pocket7.setExpression("Length", "Params.pocket7_length")
pocket7.Reversed = True

# Sketch on XY plane
sketch15 = body.newObject("Sketcher::SketchObject", "Sketch014")
sketch15.AttachmentSupport = (doc.getObject("XY_Plane"), [""])
sketch15.MapMode = "FlatFace"
add_polygon(sketch15, [(17, 55), (17, 0), (5, 0), (5, 55)])  # lines 0-3
sketch15.addConstraint([
    Sketcher.Constraint("Vertical", 0),
    Sketcher.Constraint("Horizontal", 1),
    Sketcher.Constraint("Vertical", 2),
    Sketcher.Constraint("Horizontal", 3),
    Sketcher.Constraint("DistanceX", 1, 2, 1, 1, 12.1),
    Sketcher.Constraint("DistanceY", 0, 2, 0, 1, 55.6),
    Sketcher.Constraint("DistanceY", 0, 2, -1, 1, 0.2),
    Sketcher.Constraint("DistanceX", -1, 1, 0, 2, 17.05),
])
sketch15.setExpression("Constraints[8]", "Params.sketch15_width")
sketch15.setExpression("Constraints[9]", "Params.sketch15_height")
pocket8 = body.newObject("PartDesign::Pocket", "Pocket007")
pocket8.Profile = sketch15
pocket8.setExpression("Length", "Params.pocket8_length")
pocket8.Reversed = True

# Sketch on XZ plane
sketch16 = body.newObject("Sketcher::SketchObject", "Sketch015")
sketch16.AttachmentSupport = (doc.getObject("XZ_Plane"), [""])
sketch16.MapMode = "FlatFace"
sketch16.AttachmentOffset = App.Placement(V(0, 0, -55.4), App.Rotation())
add_polygon(sketch16, [(5, 4), (5, 0), (17.1, 0), (17.1, 4)])  # lines 0-3
sketch16.addConstraint([
    Sketcher.Constraint("Vertical", 0),
    Sketcher.Constraint("Horizontal", 1),
    Sketcher.Constraint("Vertical", 2),
    Sketcher.Constraint("Horizontal", 3),
    Sketcher.Constraint("PointOnObject", 0, 2, -1),
    Sketcher.Constraint("DistanceY", 0, 2, 0, 1, 4.0),
    Sketcher.Constraint("DistanceX", 1, 1, 1, 2, 12.1),
    Sketcher.Constraint("DistanceX", -1, 1, 0, 2, 4.95),
])
sketch16.setExpression("Constraints[9]", "Params.sketch16_height")
sketch16.setExpression("Constraints[10]", "Params.sketch16_width")
pad8 = body.newObject("PartDesign::Pad", "Pad007")
pad8.Profile = sketch16
pad8.setExpression("Length", "Params.pad8_length")

# Sketch on XY plane
sketch17 = body.newObject("Sketcher::SketchObject", "Sketch016")
sketch17.AttachmentSupport = (doc.getObject("XY_Plane"), [""])
sketch17.MapMode = "FlatFace"
sketch17.addGeometry([
    Part.LineSegment(V(21, 23, 0), V(21, 33, 0)),
    Part.ArcOfCircle(Part.Circle(V(25, 28, 0), V(0, 0, 1), 6), math.radians(-130), math.radians(130)),
    Part.LineSegment(V(1, 32, 0), V(1, 24, 0)),
    Part.ArcOfCircle(Part.Circle(V(-3, 28, 0), V(0, 0, 1), 6), math.radians(45), math.radians(315)),
], False)
sketch17.addConstraint([
    Sketcher.Constraint("Coincident", 0, 1, 1, 1),
    Sketcher.Constraint("Coincident", 1, 2, 0, 2),
    Sketcher.Constraint("Coincident", 2, 1, 3, 1),
    Sketcher.Constraint("Coincident", 3, 2, 2, 2),
    Sketcher.Constraint("Vertical", 0),
    Sketcher.Constraint("Vertical", 2),
    Sketcher.Constraint("Equal", 1, 3),
    Sketcher.Constraint("Horizontal", 1, 3, 3, 3),
    Sketcher.Constraint("Radius", 1, 6.0),
    Sketcher.Constraint("DistanceX", -1, 1, 1, 3, 25.1),
    Sketcher.Constraint("DistanceX", 3, 3, -1, 1, 3.1),
    Sketcher.Constraint("DistanceX", -1, 1, 0, 1, 21.25),
    Sketcher.Constraint("DistanceY", 2, 2, 2, 1, 8.544175),
    Sketcher.Constraint("DistanceY", -1, 1, 1, 2, 32.527179),
])
sketch17.setExpression("Constraints[8]", "Params.sketch17_radius")
pad9 = body.newObject("PartDesign::Pad", "Pad008")
pad9.Profile = sketch17
pad9.setExpression("Length", "Params.pad9_length")
pad9.Reversed = True

# Sketch on XY plane
sketch18 = body.newObject("Sketcher::SketchObject", "Sketch017")
sketch18.AttachmentSupport = (doc.getObject("XY_Plane"), [""])
sketch18.MapMode = "FlatFace"
sketch18.AttachmentOffset = App.Placement(V(0, 0, -7.5), App.Rotation())
sketch18.addGeometry([
    Part.LineSegment(V(25, 23, 0), V(25, 33, 0)),
    Part.ArcOfCircle(Part.Circle(V(25, 28, 0), V(0, 0, 1), 5), math.radians(-90), math.radians(90)),
], False)
sketch18.addGeometry(Part.LineSegment(V(25, 23, 0), V(25, 33, 0)), True)  # axis
sketch18.addConstraint([
    Sketcher.Constraint("Coincident", 0, 1, 1, 1),
    Sketcher.Constraint("Coincident", 1, 2, 0, 2),
    Sketcher.Constraint("Vertical", 0),
    Sketcher.Constraint("Vertical", 2),
    Sketcher.Constraint("Coincident", 2, 1, 0, 1),
    Sketcher.Constraint("Vertical", 1, 3, 0, 1),
    Sketcher.Constraint("Equal", 0, 2),
    Sketcher.Constraint("Radius", 1, 5.0),
    Sketcher.Constraint("DistanceX", -1, 1, 1, 3, 25.1),
    Sketcher.Constraint("DistanceY", -1, 1, 1, 3, 27.925277),
])
sketch18.setExpression("Constraints[7]", "Params.sketch18_radius")
groove = body.newObject("PartDesign::Groove", "Groove")
groove.Profile = sketch18
groove.ReferenceAxis = (sketch18, ["Axis0"])
groove.setExpression("Angle", "Params.groove_angle")

# Sketch on XY plane
sketch19 = body.newObject("Sketcher::SketchObject", "Sketch018")
sketch19.AttachmentSupport = (doc.getObject("XY_Plane"), [""])
sketch19.MapMode = "FlatFace"
sketch19.AttachmentOffset = App.Placement(V(0, 0, -7.5), App.Rotation())
sketch19.addGeometry([
    Part.LineSegment(V(-3, 33, 0), V(-3, 23, 0)),
    Part.ArcOfCircle(Part.Circle(V(-3, 28, 0), V(0, 0, 1), 5), math.radians(90), math.radians(270)),
], False)
sketch19.addGeometry(Part.LineSegment(V(-3, 33, 0), V(-3, 23, 0)), True)  # axis
sketch19.addConstraint([
    Sketcher.Constraint("Coincident", 0, 1, 1, 1),
    Sketcher.Constraint("Coincident", 1, 2, 0, 2),
    Sketcher.Constraint("Vertical", 0),
    Sketcher.Constraint("Vertical", 2),
    Sketcher.Constraint("Coincident", 2, 1, 0, 1),
    Sketcher.Constraint("Vertical", 1, 3, 0, 1),
    Sketcher.Constraint("Equal", 0, 2),
    Sketcher.Constraint("Radius", 1, 5.0),
    Sketcher.Constraint("DistanceX", 1, 3, -1, 1, 3.1),
    Sketcher.Constraint("DistanceY", -1, 1, 1, 3, 27.925277),
])
sketch19.setExpression("Constraints[7]", "Params.sketch19_radius")
groove2 = body.newObject("PartDesign::Groove", "Groove001")
groove2.Profile = sketch19
groove2.ReferenceAxis = (sketch19, ["Axis0"])
groove2.setExpression("Angle", "Params.groove2_angle")

# Sketch on XY plane
sketch20 = body.newObject("Sketcher::SketchObject", "Sketch019")
sketch20.AttachmentSupport = (doc.getObject("XY_Plane"), [""])
sketch20.MapMode = "FlatFace"
sketch20.addGeometry([
    Part.Circle(V(25.1, 37.2, 0), V(0, 0, 1), 2.1),
    Part.Circle(V(25.1, 16.9, 0), V(0, 0, 1), 2.1),
    Part.Circle(V(-3.1, 37.2, 0), V(0, 0, 1), 2.1),
    Part.Circle(V(-3.1, 16.9, 0), V(0, 0, 1), 2.1),
], False)
sketch20.addConstraint([
    Sketcher.Constraint("Equal", 0, 1),
    Sketcher.Constraint("Equal", 1, 2),
    Sketcher.Constraint("Equal", 2, 3),
    Sketcher.Constraint("Horizontal", 0, 3, 2, 3),
    Sketcher.Constraint("Horizontal", 1, 3, 3, 3),
    Sketcher.Constraint("Vertical", 0, 3, 1, 3),
    Sketcher.Constraint("Vertical", 2, 3, 3, 3),
    Sketcher.Constraint("Diameter", 0, 4.2),
    Sketcher.Constraint("DistanceX", -1, 1, 0, 3, 25.1),
    Sketcher.Constraint("DistanceX", 2, 3, -1, 1, 3.1),
    Sketcher.Constraint("DistanceY", -1, 1, 0, 3, 37.194789),
    Sketcher.Constraint("DistanceY", 1, 3, 0, 3, 20.269512),
])
sketch20.setExpression("Constraints[7]", "Params.sketch20_diameter")
pocket9 = body.newObject("PartDesign::Pocket", "Pocket008")
pocket9.Profile = sketch20
pocket9.setExpression("Length", "Params.pocket9_length")
pocket9.Reversed = True

doc.recompute()
